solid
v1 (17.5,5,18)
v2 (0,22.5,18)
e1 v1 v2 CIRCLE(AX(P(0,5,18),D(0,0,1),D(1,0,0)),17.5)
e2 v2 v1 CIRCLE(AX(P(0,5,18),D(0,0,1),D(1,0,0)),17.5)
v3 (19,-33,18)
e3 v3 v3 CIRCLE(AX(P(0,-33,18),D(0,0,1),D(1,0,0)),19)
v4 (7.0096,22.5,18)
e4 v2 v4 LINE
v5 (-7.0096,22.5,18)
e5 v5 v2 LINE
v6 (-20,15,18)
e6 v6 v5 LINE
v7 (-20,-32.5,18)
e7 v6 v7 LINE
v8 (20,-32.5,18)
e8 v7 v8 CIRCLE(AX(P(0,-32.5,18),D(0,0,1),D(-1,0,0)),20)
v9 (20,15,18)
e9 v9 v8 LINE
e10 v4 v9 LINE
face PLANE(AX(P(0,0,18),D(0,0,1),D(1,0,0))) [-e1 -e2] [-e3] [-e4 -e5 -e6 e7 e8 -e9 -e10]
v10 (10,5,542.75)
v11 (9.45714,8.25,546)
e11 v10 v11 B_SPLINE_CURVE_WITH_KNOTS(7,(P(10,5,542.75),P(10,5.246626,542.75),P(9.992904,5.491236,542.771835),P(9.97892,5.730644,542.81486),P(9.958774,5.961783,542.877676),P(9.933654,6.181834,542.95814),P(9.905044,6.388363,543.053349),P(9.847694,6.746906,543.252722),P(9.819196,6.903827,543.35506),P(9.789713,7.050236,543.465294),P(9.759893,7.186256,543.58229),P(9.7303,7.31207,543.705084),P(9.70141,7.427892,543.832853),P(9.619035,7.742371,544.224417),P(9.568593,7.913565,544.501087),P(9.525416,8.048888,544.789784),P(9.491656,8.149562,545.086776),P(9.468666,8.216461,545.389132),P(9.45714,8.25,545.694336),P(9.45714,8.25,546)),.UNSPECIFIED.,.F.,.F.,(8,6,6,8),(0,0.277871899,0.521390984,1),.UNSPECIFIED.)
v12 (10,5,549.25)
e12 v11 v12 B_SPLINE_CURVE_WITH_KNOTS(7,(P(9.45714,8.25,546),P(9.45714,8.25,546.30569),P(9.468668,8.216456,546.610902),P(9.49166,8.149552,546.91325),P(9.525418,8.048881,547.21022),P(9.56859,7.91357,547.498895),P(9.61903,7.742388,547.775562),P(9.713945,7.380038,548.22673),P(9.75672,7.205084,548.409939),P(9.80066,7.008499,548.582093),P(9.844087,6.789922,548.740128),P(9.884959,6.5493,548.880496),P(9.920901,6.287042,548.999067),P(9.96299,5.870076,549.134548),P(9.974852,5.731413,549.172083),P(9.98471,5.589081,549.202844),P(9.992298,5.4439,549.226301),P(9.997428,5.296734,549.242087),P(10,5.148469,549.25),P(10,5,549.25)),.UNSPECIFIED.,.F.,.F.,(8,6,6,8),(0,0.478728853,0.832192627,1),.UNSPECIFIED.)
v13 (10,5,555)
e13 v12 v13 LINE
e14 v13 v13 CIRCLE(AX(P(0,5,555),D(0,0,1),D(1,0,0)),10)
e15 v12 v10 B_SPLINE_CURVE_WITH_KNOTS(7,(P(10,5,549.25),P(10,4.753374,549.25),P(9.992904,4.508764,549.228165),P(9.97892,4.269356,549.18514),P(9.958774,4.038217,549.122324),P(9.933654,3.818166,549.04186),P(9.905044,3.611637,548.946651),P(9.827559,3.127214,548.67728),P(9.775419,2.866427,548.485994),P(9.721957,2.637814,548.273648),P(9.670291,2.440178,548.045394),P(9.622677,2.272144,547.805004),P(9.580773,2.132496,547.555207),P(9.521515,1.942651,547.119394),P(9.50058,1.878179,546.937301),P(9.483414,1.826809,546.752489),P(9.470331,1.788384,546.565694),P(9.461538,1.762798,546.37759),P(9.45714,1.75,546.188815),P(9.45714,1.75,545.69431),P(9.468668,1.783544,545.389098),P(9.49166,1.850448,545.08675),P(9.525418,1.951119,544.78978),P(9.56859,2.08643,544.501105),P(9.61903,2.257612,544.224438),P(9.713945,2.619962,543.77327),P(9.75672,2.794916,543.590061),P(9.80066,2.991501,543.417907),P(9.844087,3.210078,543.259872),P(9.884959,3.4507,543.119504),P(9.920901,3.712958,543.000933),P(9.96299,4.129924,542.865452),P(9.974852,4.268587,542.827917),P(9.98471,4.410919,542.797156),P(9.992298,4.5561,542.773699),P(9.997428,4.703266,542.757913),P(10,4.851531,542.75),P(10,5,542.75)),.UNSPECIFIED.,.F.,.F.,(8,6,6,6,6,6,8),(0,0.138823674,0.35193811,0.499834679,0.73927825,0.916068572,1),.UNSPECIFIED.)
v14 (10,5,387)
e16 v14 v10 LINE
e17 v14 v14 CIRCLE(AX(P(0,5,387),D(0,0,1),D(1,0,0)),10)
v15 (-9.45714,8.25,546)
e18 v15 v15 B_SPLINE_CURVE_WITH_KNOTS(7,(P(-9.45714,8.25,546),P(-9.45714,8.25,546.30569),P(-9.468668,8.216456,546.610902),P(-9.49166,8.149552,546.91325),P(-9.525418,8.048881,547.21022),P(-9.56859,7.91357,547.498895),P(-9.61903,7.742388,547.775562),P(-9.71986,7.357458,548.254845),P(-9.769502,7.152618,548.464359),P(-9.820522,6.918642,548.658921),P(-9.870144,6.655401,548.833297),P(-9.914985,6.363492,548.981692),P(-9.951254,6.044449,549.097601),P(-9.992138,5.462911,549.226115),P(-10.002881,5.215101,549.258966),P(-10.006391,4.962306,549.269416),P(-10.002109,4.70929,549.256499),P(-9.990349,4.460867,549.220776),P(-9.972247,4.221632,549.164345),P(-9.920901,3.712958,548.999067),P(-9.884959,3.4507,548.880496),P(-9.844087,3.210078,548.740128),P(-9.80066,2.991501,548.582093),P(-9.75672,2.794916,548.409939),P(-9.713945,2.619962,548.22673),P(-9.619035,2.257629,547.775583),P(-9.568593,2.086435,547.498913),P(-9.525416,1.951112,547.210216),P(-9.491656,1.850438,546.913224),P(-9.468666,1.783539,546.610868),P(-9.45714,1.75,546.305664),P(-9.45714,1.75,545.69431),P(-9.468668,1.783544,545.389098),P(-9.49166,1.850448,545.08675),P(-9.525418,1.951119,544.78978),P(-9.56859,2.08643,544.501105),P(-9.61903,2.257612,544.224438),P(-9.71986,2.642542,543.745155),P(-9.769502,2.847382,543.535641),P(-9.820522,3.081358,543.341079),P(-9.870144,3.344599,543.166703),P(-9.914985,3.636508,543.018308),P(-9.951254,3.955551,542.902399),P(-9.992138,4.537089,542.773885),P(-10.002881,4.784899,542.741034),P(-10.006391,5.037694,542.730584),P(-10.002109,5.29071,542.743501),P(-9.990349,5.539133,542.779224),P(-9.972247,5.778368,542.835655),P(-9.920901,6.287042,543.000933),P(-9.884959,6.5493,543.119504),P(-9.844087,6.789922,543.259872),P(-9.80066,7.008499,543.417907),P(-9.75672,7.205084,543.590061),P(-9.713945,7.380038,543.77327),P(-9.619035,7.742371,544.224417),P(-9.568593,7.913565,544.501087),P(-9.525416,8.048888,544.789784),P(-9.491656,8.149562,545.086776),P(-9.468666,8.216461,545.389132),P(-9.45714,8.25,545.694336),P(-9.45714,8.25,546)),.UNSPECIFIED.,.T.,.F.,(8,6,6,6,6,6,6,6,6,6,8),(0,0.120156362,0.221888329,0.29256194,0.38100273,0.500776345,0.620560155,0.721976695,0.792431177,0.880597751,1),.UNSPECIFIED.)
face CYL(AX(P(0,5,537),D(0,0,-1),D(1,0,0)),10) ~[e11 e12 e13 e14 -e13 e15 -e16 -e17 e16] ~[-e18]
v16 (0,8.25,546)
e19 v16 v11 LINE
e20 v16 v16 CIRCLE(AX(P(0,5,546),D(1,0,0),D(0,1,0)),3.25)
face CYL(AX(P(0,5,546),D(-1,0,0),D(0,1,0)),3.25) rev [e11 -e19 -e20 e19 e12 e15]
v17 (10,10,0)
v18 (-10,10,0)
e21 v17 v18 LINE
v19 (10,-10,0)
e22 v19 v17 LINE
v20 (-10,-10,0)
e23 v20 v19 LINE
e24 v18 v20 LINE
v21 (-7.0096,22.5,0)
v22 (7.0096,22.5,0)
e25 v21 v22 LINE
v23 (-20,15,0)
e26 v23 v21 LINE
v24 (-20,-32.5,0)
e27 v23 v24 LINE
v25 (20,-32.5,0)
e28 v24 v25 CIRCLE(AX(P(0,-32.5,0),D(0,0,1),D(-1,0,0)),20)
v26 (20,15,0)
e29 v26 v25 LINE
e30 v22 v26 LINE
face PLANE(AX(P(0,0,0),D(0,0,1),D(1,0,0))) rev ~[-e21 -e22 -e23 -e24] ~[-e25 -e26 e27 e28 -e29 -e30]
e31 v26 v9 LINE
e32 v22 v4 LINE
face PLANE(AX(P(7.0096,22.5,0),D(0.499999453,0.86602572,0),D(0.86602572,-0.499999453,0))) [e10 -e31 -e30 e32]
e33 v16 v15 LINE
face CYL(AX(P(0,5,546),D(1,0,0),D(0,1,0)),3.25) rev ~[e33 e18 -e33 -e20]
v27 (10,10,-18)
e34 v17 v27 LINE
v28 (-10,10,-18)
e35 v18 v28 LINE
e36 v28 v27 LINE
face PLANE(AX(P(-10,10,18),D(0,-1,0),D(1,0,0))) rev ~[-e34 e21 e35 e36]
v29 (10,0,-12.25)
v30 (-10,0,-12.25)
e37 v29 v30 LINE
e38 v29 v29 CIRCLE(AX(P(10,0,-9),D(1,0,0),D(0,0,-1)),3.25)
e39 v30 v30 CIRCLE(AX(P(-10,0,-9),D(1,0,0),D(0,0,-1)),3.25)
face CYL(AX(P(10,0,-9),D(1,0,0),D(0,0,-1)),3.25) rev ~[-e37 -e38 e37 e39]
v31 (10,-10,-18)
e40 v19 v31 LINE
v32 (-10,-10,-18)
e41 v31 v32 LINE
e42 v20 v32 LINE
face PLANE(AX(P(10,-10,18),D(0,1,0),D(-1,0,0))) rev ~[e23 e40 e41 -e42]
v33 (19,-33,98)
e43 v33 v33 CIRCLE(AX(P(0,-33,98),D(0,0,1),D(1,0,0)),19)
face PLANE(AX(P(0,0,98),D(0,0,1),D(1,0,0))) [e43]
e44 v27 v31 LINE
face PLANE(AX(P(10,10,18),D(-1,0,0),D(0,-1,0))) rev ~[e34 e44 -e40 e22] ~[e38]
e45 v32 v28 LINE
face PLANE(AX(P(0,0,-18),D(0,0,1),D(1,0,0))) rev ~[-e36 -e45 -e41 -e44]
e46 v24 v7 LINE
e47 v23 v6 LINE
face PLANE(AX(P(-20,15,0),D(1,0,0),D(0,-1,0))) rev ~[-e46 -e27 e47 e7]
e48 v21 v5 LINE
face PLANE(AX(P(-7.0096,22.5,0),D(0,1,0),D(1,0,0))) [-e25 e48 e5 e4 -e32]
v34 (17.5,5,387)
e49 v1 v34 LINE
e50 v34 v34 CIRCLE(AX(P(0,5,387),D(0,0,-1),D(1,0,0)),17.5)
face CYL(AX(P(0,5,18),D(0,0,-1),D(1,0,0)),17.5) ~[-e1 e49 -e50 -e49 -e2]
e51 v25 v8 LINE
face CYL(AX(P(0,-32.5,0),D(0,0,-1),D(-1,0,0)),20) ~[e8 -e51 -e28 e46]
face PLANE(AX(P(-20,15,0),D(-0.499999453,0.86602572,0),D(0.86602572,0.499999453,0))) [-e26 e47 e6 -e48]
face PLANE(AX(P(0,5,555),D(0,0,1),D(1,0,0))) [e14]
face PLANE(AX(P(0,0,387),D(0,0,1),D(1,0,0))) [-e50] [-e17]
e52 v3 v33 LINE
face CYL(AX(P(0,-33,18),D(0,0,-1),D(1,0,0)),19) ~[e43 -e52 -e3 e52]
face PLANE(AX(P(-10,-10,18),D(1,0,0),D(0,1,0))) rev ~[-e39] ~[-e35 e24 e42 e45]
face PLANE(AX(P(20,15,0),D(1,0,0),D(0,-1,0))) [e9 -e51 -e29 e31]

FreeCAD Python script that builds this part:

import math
import FreeCAD as App
import Part
import Sketcher
Q = App.Units.Quantity


def add_polygon(sketch, points):
    """Adds a closed chain of lines whose ends are joined by coincident constraints."""
    first, n = sketch.GeometryCount, len(points)
    for a, b in zip(points, points[1:] + points[:1]):
        sketch.addGeometry(Part.LineSegment(App.Vector(*a, 0), App.Vector(*b, 0)), False)
    for i in range(n):
        sketch.addConstraint(Sketcher.Constraint("Coincident", first + i, 2, first + (i + 1) % n, 1))

doc = App.newDocument("Part")
body = doc.addObject("PartDesign::Body", "Body")

sketch1 = body.newObject("Sketcher::SketchObject", "Sketch")
sketch1.AttachmentSupport = (doc.getObject("XY_Plane"), [""])
sketch1.MapMode = "FlatFace"
sketch1.addGeometry(Part.LineSegment(App.Vector(-7, 22, 0), App.Vector(-20, 15, 0)), False)
sketch1.addGeometry(Part.LineSegment(App.Vector(-20, 15, 0), App.Vector(-20, -32, 0)), False)
sketch1.addGeometry(Part.ArcOfCircle(Part.Circle(App.Vector(0, -32, 0), App.Vector(0, 0, 1), 20), math.radians(180), math.radians(360)), False)
sketch1.addGeometry(Part.LineSegment(App.Vector(20, -32, 0), App.Vector(20, 15, 0)), False)
sketch1.addGeometry(Part.LineSegment(App.Vector(20, 15, 0), App.Vector(7, 22, 0)), False)
sketch1.addGeometry(Part.LineSegment(App.Vector(7, 22, 0), App.Vector(-7, 22, 0)), False)
add_polygon(sketch1, [(10, -10), (-10, -10), (-10, 10), (10, 10)])
sketch1.addConstraint([
    Sketcher.Constraint("Coincident", 0, 2, 1, 1),
    Sketcher.Constraint("Tangent", 1, 2, 2, 1),
    Sketcher.Constraint("Tangent", 2, 2, 3, 1),
    Sketcher.Constraint("Coincident", 3, 2, 4, 1),
    Sketcher.Constraint("Coincident", 4, 2, 5, 1),
    Sketcher.Constraint("Coincident", 5, 2, 0, 1),
    Sketcher.Constraint("Vertical", 1),
    Sketcher.Constraint("Vertical", 3),
    Sketcher.Constraint("Horizontal", 5),
    Sketcher.Constraint("Horizontal", 6),
    Sketcher.Constraint("Vertical", 7),
    Sketcher.Constraint("Horizontal", 8),
    Sketcher.Constraint("Vertical", 9),
    Sketcher.Constraint("Symmetric", 6, 2, 8, 2, -1, 1),
    Sketcher.Constraint("Symmetric", 0, 2, 3, 2, -2),
    Sketcher.Constraint("Equal", 8, 7),
    Sketcher.Constraint("Equal", 0, 4),
    Sketcher.Constraint("Radius", 2, Q("20 mm")),
    Sketcher.Constraint("DistanceX", 6, 2, 6, 1, Q("20 mm")),
    Sketcher.Constraint("Angle", 0, Q("-150 deg")),
    Sketcher.Constraint("Distance", 0, Q("15 mm")),
    Sketcher.Constraint("DistanceY", -1, 1, 0, 2, Q("15 mm")),
    Sketcher.Constraint("DistanceY", 2, 3, 4, 2, Q("55 mm")),
])
pad1 = body.newObject("PartDesign::Pad", "Pad")
pad1.Profile = sketch1
pad1.Length = 18

sketch2 = body.newObject("Sketcher::SketchObject", "Sketch001")
sketch2.AttachmentSupport = (doc.getObject("XY_Plane"), [""])
sketch2.MapMode = "FlatFace"
sketch2.AttachmentOffset = App.Placement(App.Vector(0, 0, 18), App.Rotation())
add_polygon(sketch2, [(-10, 10), (-10, -10), (10, -10), (10, 10)])
sketch2.addConstraint([
    Sketcher.Constraint("Vertical", 0),
    Sketcher.Constraint("Horizontal", 1),
    Sketcher.Constraint("Vertical", 2),
    Sketcher.Constraint("Horizontal", 3),
    Sketcher.Constraint("Symmetric", 0, 2, 2, 2, -1, 1),
    Sketcher.Constraint("Equal", 3, 0),
    Sketcher.Constraint("DistanceX", 1, 1, 1, 2, Q("20 mm")),
])
pad2 = body.newObject("PartDesign::Pad", "Pad001")
pad2.Profile = sketch2
pad2.Length = 36
pad2.Reversed = True

sketch3 = body.newObject("Sketcher::SketchObject", "Sketch002")
sketch3.AttachmentSupport = (doc.getObject("YZ_Plane"), [""])
sketch3.MapMode = "FlatFace"
sketch3.AttachmentOffset = App.Placement(App.Vector(0, 0, 10), App.Rotation())
sketch3.addGeometry(Part.Circle(App.Vector(0, -9, 0), App.Vector(0, 0, 1), 3.2), False)
sketch3.addConstraint([
    Sketcher.Constraint("PointOnObject", 0, 3, -2),
    Sketcher.Constraint("Diameter", 0, Q("6.5 mm")),
    Sketcher.Constraint("DistanceY", 0, 3, -1, 1, Q("9 mm")),
])
pocket1 = body.newObject("PartDesign::Pocket", "Pocket")
pocket1.Profile = sketch3
pocket1.Type = "ThroughAll"

sketch4 = body.newObject("Sketcher::SketchObject", "Sketch003")
sketch4.AttachmentSupport = (doc.getObject("XY_Plane"), [""])
sketch4.MapMode = "FlatFace"
sketch4.AttachmentOffset = App.Placement(App.Vector(0, 0, 18), App.Rotation())
sketch4.addGeometry(Part.Circle(App.Vector(0, 5, 0), App.Vector(0, 0, 1), 18), False)
sketch4.addConstraint([
    Sketcher.Constraint("PointOnObject", 0, 3, -2),
    Sketcher.Constraint("Diameter", 0, Q("35 mm")),
    Sketcher.Constraint("DistanceY", -1, 1, 0, 3, Q("5 mm")),
])
pad3 = body.newObject("PartDesign::Pad", "Pad002")
pad3.Profile = sketch4
pad3.Length = 369

sketch5 = body.newObject("Sketcher::SketchObject", "Sketch004")
sketch5.AttachmentSupport = (doc.getObject("XY_Plane"), [""])
sketch5.MapMode = "FlatFace"
sketch5.AttachmentOffset = App.Placement(App.Vector(0, 0, 18), App.Rotation())
sketch5.addGeometry(Part.Circle(App.Vector(0, -33, 0), App.Vector(0, 0, 1), 19), False)
sketch5.addConstraint([
    Sketcher.Constraint("PointOnObject", 0, 3, -2),
    Sketcher.Constraint("Diameter", 0, Q("38 mm")),
    Sketcher.Constraint("DistanceY", 0, 3, -1, 1, Q("33 mm")),
])
pad4 = body.newObject("PartDesign::Pad", "Pad003")
pad4.Profile = sketch5
pad4.Length = 80

sketch6 = body.newObject("Sketcher::SketchObject", "Sketch005")
sketch6.AttachmentSupport = (doc.getObject("XY_Plane"), [""])
sketch6.MapMode = "FlatFace"
sketch6.AttachmentOffset = App.Placement(App.Vector(0, 0, 387), App.Rotation())
sketch6.addGeometry(Part.Circle(App.Vector(0, 5, 0), App.Vector(0, 0, 1), 10), False)
sketch6.addConstraint([
    Sketcher.Constraint("PointOnObject", 0, 3, -2),
    Sketcher.Constraint("Diameter", 0, Q("20 mm")),
    Sketcher.Constraint("DistanceY", -1, 1, 0, 3, Q("5 mm")),
])
pad5 = body.newObject("PartDesign::Pad", "Pad004")
pad5.Profile = sketch6
pad5.Length = 150

sketch7 = body.newObject("Sketcher::SketchObject", "Sketch006")
sketch7.AttachmentSupport = (doc.getObject("XY_Plane"), [""])
sketch7.MapMode = "FlatFace"
sketch7.AttachmentOffset = App.Placement(App.Vector(0, 0, 537), App.Rotation())
sketch7.addGeometry(Part.Circle(App.Vector(0, 5, 0), App.Vector(0, 0, 1), 10), False)
sketch7.addConstraint([
    Sketcher.Constraint("PointOnObject", 0, 3, -2),
    Sketcher.Constraint("Diameter", 0, Q("20 mm")),
    Sketcher.Constraint("DistanceY", -1, 1, 0, 3, Q("5 mm")),
])
pad6 = body.newObject("PartDesign::Pad", "Pad005")
pad6.Profile = sketch7
pad6.Length = 18

sketch8 = body.newObject("Sketcher::SketchObject", "Sketch007")
sketch8.AttachmentSupport = (doc.getObject("YZ_Plane"), [""])
sketch8.MapMode = "FlatFace"
sketch8.addGeometry(Part.Circle(App.Vector(5, 546, 0), App.Vector(0, 0, 1), 3.2), False)
sketch8.addConstraint([
    Sketcher.Constraint("Diameter", 0, Q("6.5 mm")),
    Sketcher.Constraint("DistanceX", -1, 1, 0, 3, Q("5 mm")),
    Sketcher.Constraint("DistanceY", -1, 1, 0, 3, Q("546 mm")),
])
pocket2 = body.newObject("PartDesign::Pocket", "Pocket001")
pocket2.Profile = sketch8
pocket2.Type = "ThroughAll"
pocket2.Midplane = True

doc.recompute()
